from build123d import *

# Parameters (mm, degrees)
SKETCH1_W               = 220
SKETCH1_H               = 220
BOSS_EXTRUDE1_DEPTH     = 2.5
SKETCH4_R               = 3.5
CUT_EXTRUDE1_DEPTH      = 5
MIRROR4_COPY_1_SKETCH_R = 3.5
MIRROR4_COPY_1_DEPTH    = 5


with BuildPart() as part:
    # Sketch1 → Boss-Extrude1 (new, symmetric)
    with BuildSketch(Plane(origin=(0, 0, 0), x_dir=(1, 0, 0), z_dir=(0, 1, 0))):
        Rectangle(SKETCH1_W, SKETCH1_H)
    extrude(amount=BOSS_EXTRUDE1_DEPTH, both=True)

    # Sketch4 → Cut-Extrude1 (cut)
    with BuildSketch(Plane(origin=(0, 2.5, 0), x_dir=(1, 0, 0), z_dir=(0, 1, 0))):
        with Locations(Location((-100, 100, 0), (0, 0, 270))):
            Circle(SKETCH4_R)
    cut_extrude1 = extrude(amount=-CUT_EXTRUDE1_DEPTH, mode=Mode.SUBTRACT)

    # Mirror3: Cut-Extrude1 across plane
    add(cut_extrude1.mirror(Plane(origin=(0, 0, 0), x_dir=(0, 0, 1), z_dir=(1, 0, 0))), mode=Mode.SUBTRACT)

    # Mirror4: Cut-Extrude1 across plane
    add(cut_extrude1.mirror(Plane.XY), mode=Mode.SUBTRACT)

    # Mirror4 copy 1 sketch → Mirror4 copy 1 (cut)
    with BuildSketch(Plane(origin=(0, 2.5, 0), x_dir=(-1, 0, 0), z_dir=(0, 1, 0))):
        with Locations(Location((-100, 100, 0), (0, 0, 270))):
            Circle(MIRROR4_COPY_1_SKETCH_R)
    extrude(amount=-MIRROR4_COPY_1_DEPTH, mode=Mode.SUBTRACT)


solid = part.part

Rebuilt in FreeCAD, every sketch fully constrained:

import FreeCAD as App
import Part
import Sketcher
from FreeCAD import Vector


def add_polygon(sketch, points):
    """Adds a closed chain of lines whose ends are joined by coincident constraints."""
    first, n = sketch.GeometryCount, len(points)
    for a, b in zip(points, points[1:] + points[:1]):
        sketch.addGeometry(Part.LineSegment(App.Vector(*a, 0), App.Vector(*b, 0)), False)
    for i in range(n):
        sketch.addConstraint(Sketcher.Constraint("Coincident", first + i, 2, first + (i + 1) % n, 1))

doc = App.newDocument("Part")
params = doc.addObject("Spreadsheet::Sheet", "Params")
for row, (alias, value) in enumerate([
    ("sketch1_width", "220 mm"),
    ("pad1_length", "5 mm"),
    ("sketch2_diameter", "7 mm"),
    ("pocket1_length", "5 mm"),
    ("sketch3_diameter", "7 mm"),
    ("pocket2_length", "5 mm"),
], start=1):
    params.set(f"A{row}", alias)
    params.set(f"B{row}", "=" + value)
    params.setAlias(f"B{row}", alias)

body = doc.addObject("PartDesign::Body", "Body")

# Sketch on XZ plane
sketch1 = doc.addObject("Sketcher::SketchObject", "Sketch")
body.addObject(sketch1)
sketch1.AttachmentSupport = (doc.XZ_Plane, [""])
sketch1.MapMode = "FlatFace"
add_polygon(sketch1, [(-110, -110), (-110, 110), (110, 110), (110, -110)])  # lines 0-3
sketch1.addConstraint(Sketcher.Constraint("Vertical", 0))
sketch1.addConstraint(Sketcher.Constraint("Horizontal", 1))
sketch1.addConstraint(Sketcher.Constraint("Vertical", 2))
sketch1.addConstraint(Sketcher.Constraint("Horizontal", 3))
sketch1.addConstraint(Sketcher.Constraint("Symmetric", 0, 2, 2, 2, -1, 1))
sketch1.addConstraint(Sketcher.Constraint("Equal", 3, 0))
sketch1.addConstraint(Sketcher.Constraint("DistanceX", 1, 1, 1, 2, 220.0))
sketch1.setExpression("Constraints[10]", "Params.sketch1_width")
pad1 = doc.addObject("PartDesign::Pad", "Pad")
body.addObject(pad1)
pad1.Profile = sketch1
pad1.setExpression("Length", "Params.pad1_length")
pad1.Midplane = True

# Sketch on XZ plane
sketch2 = doc.addObject("Sketcher::SketchObject", "Sketch001")
body.addObject(sketch2)
sketch2.AttachmentSupport = (doc.XZ_Plane, [""])
sketch2.MapMode = "FlatFace"
sketch2.AttachmentOffset = App.Placement(Vector(0, 0, -2.5), App.Rotation())
sketch2.addGeometry(Part.Circle(Vector(-100, -100, 0), Vector(0, 0, 1), 3.5), False)
sketch2.addConstraint(Sketcher.Constraint("Diameter", 0, 7.0))
sketch2.addConstraint(Sketcher.Constraint("DistanceX", 0, 3, -1, 1, 100.0))
sketch2.addConstraint(Sketcher.Constraint("DistanceY", 0, 3, -1, 1, 100.0))
sketch2.setExpression("Constraints[0]", "Params.sketch2_diameter")
pocket1 = doc.addObject("PartDesign::Pocket", "Pocket")
body.addObject(pocket1)
pocket1.Profile = sketch2
pocket1.setExpression("Length", "Params.pocket1_length")
pocket1.Reversed = True
doc.recompute()

mirrored = doc.addObject("PartDesign::Mirrored", "Mirrored")
body.addObject(mirrored)
mirrored.Originals = [pocket1]
mirrored.MirrorPlane = (doc.YZ_Plane, [""])
body.Tip = mirrored
doc.recompute()

mirrored2 = doc.addObject("PartDesign::Mirrored", "Mirrored001")
body.addObject(mirrored2)
mirrored2.Originals = [pocket1]
mirrored2.MirrorPlane = (doc.XY_Plane, [""])
body.Tip = mirrored2

# Sketch on XZ plane
sketch3 = doc.addObject("Sketcher::SketchObject", "Sketch002")
body.addObject(sketch3)
sketch3.AttachmentSupport = (doc.XZ_Plane, [""])
sketch3.MapMode = "FlatFace"
sketch3.AttachmentOffset = App.Placement(Vector(0, 0, -2.5), App.Rotation())
sketch3.addGeometry(Part.Circle(Vector(100, 100, 0), Vector(0, 0, 1), 3.5), False)
sketch3.addConstraint(Sketcher.Constraint("Diameter", 0, 7.0))
sketch3.addConstraint(Sketcher.Constraint("DistanceX", -1, 1, 0, 3, 100.0))
sketch3.addConstraint(Sketcher.Constraint("DistanceY", -1, 1, 0, 3, 100.0))
sketch3.setExpression("Constraints[0]", "Params.sketch3_diameter")
pocket2 = doc.addObject("PartDesign::Pocket", "Pocket001")
body.addObject(pocket2)
pocket2.Profile = sketch3
pocket2.setExpression("Length", "Params.pocket2_length")
pocket2.Reversed = True

doc.recompute()
